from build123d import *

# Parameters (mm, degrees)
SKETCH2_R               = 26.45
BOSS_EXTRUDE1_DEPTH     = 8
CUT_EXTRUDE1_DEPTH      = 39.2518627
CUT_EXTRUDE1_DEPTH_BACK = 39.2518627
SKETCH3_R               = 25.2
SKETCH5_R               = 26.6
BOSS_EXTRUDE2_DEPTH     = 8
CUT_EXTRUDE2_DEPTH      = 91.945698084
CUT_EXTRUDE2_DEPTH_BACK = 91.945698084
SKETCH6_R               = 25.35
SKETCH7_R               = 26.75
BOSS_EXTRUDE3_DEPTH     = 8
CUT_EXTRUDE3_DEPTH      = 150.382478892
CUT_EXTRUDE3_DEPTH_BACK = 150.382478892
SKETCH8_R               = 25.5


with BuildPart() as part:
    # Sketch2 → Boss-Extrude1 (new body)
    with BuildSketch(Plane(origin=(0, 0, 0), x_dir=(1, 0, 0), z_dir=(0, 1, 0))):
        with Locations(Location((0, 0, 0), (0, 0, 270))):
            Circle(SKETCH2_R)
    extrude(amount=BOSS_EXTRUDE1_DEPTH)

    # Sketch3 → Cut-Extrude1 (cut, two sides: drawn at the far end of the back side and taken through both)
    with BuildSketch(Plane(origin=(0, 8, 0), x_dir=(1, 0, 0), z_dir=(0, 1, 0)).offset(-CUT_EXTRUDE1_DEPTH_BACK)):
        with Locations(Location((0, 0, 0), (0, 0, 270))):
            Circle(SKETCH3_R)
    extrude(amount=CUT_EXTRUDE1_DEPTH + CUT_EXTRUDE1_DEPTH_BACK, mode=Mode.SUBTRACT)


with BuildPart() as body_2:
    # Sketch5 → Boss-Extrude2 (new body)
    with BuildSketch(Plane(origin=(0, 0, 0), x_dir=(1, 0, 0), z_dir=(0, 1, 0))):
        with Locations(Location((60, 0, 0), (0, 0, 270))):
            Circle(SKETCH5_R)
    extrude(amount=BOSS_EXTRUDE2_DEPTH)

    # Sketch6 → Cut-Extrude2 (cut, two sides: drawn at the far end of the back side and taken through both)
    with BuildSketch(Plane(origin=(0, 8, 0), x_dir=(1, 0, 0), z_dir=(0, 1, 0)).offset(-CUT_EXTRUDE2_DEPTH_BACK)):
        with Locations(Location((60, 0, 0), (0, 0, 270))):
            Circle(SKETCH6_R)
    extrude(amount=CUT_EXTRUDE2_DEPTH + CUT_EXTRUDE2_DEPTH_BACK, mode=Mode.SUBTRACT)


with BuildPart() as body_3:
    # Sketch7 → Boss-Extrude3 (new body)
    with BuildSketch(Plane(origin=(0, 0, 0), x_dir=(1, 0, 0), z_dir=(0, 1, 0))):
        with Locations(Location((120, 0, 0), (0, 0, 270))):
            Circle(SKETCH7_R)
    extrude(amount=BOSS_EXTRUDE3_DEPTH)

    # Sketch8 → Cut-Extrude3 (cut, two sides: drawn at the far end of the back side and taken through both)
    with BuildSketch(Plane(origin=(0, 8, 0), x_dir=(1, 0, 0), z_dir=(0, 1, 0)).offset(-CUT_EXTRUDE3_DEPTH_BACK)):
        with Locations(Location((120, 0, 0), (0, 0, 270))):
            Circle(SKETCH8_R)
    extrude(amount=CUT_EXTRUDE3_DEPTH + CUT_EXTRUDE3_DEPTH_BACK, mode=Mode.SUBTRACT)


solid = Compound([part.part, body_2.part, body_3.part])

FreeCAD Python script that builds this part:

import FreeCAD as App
import Part
import Sketcher
from FreeCAD import Vector

doc = App.newDocument("Part")
body = doc.addObject("PartDesign::Body", "Body")

# Sketch on XZ plane
sketch1 = doc.addObject("Sketcher::SketchObject", "Sketch")
body.addObject(sketch1)
sketch1.AttachmentSupport = (doc.XZ_Plane, [""])
sketch1.MapMode = "FlatFace"
sketch1.addGeometry(Part.Circle(Vector(0, 0, 0), Vector(0, 0, 1), 26), False)
sketch1.addConstraint([
    Sketcher.Constraint("Coincident", 0, 3, -1, 1),
    Sketcher.Constraint("Diameter", 0, 52.9),
])
pad1 = doc.addObject("PartDesign::Pad", "Pad")
body.addObject(pad1)
pad1.Profile = sketch1
pad1.Length = 8
pad1.Reversed = True

# Sketch on XZ plane
sketch2 = doc.addObject("Sketcher::SketchObject", "Sketch001")
body.addObject(sketch2)
sketch2.AttachmentSupport = (doc.XZ_Plane, [""])
sketch2.MapMode = "FlatFace"
sketch2.AttachmentOffset = App.Placement(Vector(0, 0, -8), App.Rotation())
sketch2.addGeometry(Part.Circle(Vector(0, 0, 0), Vector(0, 0, 1), 25), False)
sketch2.addConstraint([
    Sketcher.Constraint("Coincident", 0, 3, -1, 1),
    Sketcher.Constraint("Diameter", 0, 50.4),
])
pocket1 = doc.addObject("PartDesign::Pocket", "Pocket")
body.addObject(pocket1)
pocket1.Profile = sketch2
pocket1.Type = "ThroughAll"
pocket1.Midplane = True
body2 = doc.addObject("PartDesign::Body", "Body001")

# Sketch on XZ plane
sketch3 = doc.addObject("Sketcher::SketchObject", "Sketch002")
body2.addObject(sketch3)
sketch3.AttachmentSupport = (doc.getObject("XZ_Plane001"), [""])
sketch3.MapMode = "FlatFace"
sketch3.addGeometry(Part.Circle(Vector(60, 0, 0), Vector(0, 0, 1), 27), False)
sketch3.addConstraint([
    Sketcher.Constraint("PointOnObject", 0, 3, -1),
    Sketcher.Constraint("Diameter", 0, 53.2),
    Sketcher.Constraint("DistanceX", -1, 1, 0, 3, 60.0),
])
pad2 = doc.addObject("PartDesign::Pad", "Pad001")
body2.addObject(pad2)
pad2.Profile = sketch3
pad2.Length = 8
pad2.Reversed = True

# Sketch on XZ plane
sketch4 = doc.addObject("Sketcher::SketchObject", "Sketch003")
body2.addObject(sketch4)
sketch4.AttachmentSupport = (doc.getObject("XZ_Plane001"), [""])
sketch4.MapMode = "FlatFace"
sketch4.AttachmentOffset = App.Placement(Vector(0, 0, -8), App.Rotation())
sketch4.addGeometry(Part.Circle(Vector(60, 0, 0), Vector(0, 0, 1), 25), False)
sketch4.addConstraint([
    Sketcher.Constraint("PointOnObject", 0, 3, -1),
    Sketcher.Constraint("Diameter", 0, 50.7),
    Sketcher.Constraint("DistanceX", -1, 1, 0, 3, 60.0),
])
pocket2 = doc.addObject("PartDesign::Pocket", "Pocket001")
body2.addObject(pocket2)
pocket2.Profile = sketch4
pocket2.Type = "ThroughAll"
pocket2.Midplane = True
body3 = doc.addObject("PartDesign::Body", "Body002")

# Sketch on XZ plane
sketch5 = doc.addObject("Sketcher::SketchObject", "Sketch004")
body3.addObject(sketch5)
sketch5.AttachmentSupport = (doc.getObject("XZ_Plane002"), [""])
sketch5.MapMode = "FlatFace"
sketch5.addGeometry(Part.Circle(Vector(120, 0, 0), Vector(0, 0, 1), 27), False)
sketch5.addConstraint([
    Sketcher.Constraint("PointOnObject", 0, 3, -1),
    Sketcher.Constraint("Diameter", 0, 53.5),
    Sketcher.Constraint("DistanceX", -1, 1, 0, 3, 120.0),
])
pad3 = doc.addObject("PartDesign::Pad", "Pad002")
body3.addObject(pad3)
pad3.Profile = sketch5
pad3.Length = 8
pad3.Reversed = True

# Sketch on XZ plane
sketch6 = doc.addObject("Sketcher::SketchObject", "Sketch005")
body3.addObject(sketch6)
sketch6.AttachmentSupport = (doc.getObject("XZ_Plane002"), [""])
sketch6.MapMode = "FlatFace"
sketch6.AttachmentOffset = App.Placement(Vector(0, 0, -8), App.Rotation())
sketch6.addGeometry(Part.Circle(Vector(120, 0, 0), Vector(0, 0, 1), 26), False)
sketch6.addConstraint([
    Sketcher.Constraint("PointOnObject", 0, 3, -1),
    Sketcher.Constraint("Diameter", 0, 51.0),
    Sketcher.Constraint("DistanceX", -1, 1, 0, 3, 120.0),
])
pocket3 = doc.addObject("PartDesign::Pocket", "Pocket002")
body3.addObject(pocket3)
pocket3.Profile = sketch6
pocket3.Type = "ThroughAll"
pocket3.Midplane = True

doc.recompute()
